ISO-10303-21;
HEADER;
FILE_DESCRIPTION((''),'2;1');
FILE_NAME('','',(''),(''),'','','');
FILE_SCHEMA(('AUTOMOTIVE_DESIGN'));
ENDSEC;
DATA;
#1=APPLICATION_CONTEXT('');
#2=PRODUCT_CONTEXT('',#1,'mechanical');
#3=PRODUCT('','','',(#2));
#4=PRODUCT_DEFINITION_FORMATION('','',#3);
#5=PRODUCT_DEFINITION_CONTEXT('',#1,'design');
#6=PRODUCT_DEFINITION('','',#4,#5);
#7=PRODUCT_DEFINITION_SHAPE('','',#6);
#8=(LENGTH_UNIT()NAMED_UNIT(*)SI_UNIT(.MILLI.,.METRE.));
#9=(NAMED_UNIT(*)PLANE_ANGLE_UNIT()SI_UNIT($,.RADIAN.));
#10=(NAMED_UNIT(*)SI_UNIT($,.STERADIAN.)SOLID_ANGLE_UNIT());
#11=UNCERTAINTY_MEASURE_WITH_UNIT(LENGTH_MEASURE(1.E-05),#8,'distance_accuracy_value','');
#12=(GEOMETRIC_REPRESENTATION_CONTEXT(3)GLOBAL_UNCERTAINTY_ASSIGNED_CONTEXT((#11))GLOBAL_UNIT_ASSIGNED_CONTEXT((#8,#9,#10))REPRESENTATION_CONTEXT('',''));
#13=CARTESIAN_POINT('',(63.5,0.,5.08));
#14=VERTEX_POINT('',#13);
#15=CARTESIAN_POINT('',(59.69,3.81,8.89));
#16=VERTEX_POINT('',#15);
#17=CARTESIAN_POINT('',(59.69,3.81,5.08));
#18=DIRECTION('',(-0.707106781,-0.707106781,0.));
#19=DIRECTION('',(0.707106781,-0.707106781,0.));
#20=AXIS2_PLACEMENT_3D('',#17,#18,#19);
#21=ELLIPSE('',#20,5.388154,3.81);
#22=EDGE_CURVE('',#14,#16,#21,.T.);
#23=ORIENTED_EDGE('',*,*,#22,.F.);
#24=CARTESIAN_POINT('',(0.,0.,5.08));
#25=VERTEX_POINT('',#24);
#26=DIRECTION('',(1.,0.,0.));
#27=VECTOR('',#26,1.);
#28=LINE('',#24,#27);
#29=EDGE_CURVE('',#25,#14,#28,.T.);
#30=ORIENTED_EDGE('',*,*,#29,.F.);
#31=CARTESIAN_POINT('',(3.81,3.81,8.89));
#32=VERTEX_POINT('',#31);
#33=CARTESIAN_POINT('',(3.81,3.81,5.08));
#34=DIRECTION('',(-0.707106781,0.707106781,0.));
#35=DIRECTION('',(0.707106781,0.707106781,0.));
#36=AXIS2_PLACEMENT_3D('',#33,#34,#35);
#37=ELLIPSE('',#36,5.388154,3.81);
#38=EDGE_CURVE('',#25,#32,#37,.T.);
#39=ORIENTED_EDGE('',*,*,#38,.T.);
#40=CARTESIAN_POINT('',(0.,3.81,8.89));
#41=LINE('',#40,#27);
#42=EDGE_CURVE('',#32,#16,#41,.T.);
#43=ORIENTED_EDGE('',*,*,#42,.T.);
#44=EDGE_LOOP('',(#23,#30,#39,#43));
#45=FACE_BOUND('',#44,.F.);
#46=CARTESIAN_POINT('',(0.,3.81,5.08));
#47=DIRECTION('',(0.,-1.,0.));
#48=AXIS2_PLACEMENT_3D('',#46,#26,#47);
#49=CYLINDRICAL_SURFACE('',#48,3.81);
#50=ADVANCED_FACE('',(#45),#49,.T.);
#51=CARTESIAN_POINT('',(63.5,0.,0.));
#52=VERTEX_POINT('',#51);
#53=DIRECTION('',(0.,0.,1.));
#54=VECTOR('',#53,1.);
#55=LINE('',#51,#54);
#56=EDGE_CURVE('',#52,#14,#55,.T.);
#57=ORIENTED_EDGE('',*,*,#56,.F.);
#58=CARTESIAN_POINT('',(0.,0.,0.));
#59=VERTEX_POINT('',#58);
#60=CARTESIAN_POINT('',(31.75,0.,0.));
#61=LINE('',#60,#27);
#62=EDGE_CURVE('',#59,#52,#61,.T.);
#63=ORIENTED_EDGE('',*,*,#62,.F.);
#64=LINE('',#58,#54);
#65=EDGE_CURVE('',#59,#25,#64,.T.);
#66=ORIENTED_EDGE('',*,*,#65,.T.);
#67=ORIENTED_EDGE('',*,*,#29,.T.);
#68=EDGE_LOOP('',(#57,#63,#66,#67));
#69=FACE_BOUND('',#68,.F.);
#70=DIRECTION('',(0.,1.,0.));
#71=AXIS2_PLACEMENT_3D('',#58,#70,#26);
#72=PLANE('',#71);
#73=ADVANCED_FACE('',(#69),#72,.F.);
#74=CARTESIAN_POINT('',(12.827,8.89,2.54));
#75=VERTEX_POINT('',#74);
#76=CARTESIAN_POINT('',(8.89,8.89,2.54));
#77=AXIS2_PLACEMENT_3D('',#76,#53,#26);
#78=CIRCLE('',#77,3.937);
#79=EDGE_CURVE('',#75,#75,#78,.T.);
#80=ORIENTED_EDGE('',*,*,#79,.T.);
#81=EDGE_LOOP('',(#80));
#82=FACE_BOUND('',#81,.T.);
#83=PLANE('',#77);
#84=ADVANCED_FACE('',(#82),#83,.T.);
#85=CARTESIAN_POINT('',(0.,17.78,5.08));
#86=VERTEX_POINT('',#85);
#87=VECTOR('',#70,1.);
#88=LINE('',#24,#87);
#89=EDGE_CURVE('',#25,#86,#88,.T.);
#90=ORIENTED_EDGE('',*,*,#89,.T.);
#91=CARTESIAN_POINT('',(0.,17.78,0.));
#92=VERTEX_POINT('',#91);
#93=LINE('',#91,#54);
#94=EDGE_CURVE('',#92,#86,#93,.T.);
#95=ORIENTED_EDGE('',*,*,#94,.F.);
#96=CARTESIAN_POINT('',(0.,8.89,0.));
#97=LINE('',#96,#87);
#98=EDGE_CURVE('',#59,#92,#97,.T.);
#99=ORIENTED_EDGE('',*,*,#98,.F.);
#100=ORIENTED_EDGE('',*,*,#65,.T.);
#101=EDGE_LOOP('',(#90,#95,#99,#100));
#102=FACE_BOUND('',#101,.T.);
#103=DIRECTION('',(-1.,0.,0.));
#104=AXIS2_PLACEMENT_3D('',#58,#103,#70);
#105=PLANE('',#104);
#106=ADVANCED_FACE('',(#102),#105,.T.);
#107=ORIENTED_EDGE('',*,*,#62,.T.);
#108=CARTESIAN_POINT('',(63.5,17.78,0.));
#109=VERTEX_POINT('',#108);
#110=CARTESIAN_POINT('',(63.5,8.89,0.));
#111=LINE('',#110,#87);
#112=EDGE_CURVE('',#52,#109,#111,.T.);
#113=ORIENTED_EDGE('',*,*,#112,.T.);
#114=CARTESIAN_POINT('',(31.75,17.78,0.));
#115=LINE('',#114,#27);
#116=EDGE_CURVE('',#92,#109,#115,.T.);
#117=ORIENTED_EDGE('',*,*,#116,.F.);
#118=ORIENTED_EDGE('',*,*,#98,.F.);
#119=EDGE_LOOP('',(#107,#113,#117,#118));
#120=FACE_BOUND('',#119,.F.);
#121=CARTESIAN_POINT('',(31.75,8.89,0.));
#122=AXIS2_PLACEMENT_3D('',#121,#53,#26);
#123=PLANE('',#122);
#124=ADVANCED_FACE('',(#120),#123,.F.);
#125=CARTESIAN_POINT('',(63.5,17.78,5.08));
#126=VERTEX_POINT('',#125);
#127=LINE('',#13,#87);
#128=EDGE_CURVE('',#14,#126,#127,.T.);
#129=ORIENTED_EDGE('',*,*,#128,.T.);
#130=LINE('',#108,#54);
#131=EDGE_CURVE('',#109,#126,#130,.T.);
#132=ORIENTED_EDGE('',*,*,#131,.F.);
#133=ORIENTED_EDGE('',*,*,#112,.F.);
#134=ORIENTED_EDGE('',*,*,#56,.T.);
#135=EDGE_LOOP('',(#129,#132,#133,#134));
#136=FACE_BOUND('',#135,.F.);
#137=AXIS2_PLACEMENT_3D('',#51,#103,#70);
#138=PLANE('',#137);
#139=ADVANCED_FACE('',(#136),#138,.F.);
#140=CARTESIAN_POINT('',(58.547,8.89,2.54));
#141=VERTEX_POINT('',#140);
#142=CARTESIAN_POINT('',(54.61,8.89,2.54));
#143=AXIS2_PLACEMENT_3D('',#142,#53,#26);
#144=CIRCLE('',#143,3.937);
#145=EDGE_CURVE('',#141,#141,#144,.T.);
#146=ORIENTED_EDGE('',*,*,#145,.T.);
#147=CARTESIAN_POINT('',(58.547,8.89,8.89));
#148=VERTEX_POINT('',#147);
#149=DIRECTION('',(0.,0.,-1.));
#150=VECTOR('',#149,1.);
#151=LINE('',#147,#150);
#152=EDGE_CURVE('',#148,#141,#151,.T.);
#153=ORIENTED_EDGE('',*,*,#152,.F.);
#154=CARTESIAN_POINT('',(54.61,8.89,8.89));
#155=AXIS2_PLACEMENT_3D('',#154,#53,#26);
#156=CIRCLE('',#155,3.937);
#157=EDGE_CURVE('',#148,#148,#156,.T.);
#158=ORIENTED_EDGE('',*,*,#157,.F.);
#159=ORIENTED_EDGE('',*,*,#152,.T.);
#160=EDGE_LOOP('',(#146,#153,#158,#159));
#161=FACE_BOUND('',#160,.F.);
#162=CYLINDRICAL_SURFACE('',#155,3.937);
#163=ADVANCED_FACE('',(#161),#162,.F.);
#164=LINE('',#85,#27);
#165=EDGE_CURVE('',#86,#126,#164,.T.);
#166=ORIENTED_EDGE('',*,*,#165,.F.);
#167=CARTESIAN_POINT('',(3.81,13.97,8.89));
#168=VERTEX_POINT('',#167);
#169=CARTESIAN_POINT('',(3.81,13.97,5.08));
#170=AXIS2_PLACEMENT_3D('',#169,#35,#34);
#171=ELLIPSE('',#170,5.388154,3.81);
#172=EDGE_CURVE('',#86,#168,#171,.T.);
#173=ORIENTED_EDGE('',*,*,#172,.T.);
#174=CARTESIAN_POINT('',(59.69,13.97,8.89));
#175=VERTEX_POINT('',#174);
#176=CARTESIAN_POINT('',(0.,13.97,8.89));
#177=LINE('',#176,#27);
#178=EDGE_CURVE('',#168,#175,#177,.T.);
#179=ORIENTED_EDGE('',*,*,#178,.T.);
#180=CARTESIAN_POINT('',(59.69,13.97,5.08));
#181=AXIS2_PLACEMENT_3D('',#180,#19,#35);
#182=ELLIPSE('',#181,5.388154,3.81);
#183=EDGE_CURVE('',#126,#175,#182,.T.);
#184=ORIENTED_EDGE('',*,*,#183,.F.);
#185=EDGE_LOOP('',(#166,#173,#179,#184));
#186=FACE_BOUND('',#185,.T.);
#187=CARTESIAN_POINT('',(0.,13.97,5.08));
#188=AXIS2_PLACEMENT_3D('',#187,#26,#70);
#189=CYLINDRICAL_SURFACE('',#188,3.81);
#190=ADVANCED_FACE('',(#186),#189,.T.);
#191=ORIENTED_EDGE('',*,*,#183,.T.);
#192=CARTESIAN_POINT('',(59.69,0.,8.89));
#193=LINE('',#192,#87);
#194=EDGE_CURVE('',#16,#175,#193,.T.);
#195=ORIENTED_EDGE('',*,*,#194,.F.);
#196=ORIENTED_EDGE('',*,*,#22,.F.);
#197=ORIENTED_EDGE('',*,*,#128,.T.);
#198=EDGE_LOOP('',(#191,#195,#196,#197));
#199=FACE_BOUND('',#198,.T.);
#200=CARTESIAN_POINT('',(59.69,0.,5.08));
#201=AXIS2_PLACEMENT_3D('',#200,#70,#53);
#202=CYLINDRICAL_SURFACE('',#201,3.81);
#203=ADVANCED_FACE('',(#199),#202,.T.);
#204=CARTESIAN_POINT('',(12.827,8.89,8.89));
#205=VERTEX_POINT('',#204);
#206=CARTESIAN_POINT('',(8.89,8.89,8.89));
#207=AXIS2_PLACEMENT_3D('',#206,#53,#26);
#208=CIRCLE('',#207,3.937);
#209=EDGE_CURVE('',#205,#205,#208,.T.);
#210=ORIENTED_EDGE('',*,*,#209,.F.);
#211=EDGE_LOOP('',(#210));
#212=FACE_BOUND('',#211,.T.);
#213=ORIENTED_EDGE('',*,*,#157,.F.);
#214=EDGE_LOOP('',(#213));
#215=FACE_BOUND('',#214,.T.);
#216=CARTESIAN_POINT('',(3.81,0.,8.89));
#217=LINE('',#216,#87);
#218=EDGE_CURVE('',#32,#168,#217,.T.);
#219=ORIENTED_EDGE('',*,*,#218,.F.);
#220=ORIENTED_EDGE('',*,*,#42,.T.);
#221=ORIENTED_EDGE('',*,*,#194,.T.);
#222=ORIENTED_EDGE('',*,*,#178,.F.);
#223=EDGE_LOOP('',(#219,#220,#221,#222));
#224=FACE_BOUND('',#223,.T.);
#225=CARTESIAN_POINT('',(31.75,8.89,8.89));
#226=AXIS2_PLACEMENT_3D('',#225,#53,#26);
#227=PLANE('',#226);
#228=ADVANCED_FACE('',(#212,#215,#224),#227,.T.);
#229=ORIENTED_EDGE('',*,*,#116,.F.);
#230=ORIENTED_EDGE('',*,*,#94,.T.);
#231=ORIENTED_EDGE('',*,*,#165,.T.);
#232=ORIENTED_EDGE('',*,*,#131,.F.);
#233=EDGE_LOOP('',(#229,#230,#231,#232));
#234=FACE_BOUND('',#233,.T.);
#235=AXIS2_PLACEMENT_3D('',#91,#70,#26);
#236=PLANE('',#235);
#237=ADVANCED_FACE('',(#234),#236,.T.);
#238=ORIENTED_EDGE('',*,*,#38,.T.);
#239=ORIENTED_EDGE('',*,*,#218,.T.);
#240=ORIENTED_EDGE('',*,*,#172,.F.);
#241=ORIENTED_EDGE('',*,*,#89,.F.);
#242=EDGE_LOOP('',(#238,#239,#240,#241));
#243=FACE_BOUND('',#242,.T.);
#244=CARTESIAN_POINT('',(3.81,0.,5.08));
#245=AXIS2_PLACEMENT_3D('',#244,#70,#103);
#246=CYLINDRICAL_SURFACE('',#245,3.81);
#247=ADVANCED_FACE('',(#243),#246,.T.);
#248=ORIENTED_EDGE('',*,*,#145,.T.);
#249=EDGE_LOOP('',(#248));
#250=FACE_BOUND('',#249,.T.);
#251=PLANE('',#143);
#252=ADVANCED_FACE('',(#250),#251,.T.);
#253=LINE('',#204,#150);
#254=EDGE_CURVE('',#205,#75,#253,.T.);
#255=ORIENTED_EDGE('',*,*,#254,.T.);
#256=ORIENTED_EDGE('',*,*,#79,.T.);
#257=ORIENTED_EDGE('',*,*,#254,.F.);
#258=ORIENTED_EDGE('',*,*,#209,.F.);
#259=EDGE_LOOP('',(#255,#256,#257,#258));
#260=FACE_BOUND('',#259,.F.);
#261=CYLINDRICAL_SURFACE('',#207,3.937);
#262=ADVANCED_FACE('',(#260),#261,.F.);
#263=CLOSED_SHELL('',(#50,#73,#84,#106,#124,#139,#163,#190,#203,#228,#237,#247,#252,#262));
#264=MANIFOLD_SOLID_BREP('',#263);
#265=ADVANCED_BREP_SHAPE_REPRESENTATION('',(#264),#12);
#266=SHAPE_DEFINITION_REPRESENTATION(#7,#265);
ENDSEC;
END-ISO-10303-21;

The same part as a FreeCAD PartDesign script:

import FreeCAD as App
import Part
import Sketcher

V = App.Vector
Q = App.Units.Quantity


def edges_at(feature, points):
    """Names of the edges that pass closest to the given points."""
    edges = feature.Shape.Edges
    near = lambda p: min(range(len(edges)), key=lambda i: edges[i].distToShape(Part.Vertex(*p))[0])
    return sorted({f"Edge{near(p) + 1}" for p in points})


def add_polygon(sketch, points):
    """Adds a closed chain of lines whose ends are joined by coincident constraints."""
    first, n = sketch.GeometryCount, len(points)
    for a, b in zip(points, points[1:] + points[:1]):
        sketch.addGeometry(Part.LineSegment(App.Vector(*a, 0), App.Vector(*b, 0)), False)
    for i in range(n):
        sketch.addConstraint(Sketcher.Constraint("Coincident", first + i, 2, first + (i + 1) % n, 1))

doc = App.newDocument("Part")
body = doc.addObject("PartDesign::Body", "Body")

sketch1 = doc.addObject("Sketcher::SketchObject", "Sketch")
body.addObject(sketch1)
sketch1.AttachmentSupport = (doc.XY_Plane, [""])
sketch1.MapMode = "FlatFace"
add_polygon(sketch1, [(0, 17.78), (0, 0), (63.5, 0), (63.5, 17.78)])
sketch1.addConstraint([
    Sketcher.Constraint("Vertical", 0),
    Sketcher.Constraint("Horizontal", 1),
    Sketcher.Constraint("Vertical", 2),
    Sketcher.Constraint("Horizontal", 3),
    Sketcher.Constraint("Coincident", 0, 2, -1, 1),
    Sketcher.Constraint("DistanceX", 1, 1, 1, 2, Q("2.5 in")),
    Sketcher.Constraint("DistanceY", 0, 2, 0, 1, Q("0.7 in")),
])
pad1 = doc.addObject("PartDesign::Pad", "Pad")
body.addObject(pad1)
pad1.Profile = sketch1
pad1.Length = Q("0.35 in")

sketch2 = doc.addObject("Sketcher::SketchObject", "Sketch001")
body.addObject(sketch2)
sketch2.AttachmentSupport = (doc.XY_Plane, [""])
sketch2.MapMode = "FlatFace"
sketch2.AttachmentOffset = App.Placement(V(0, 0, 0.35 * 25.4), App.Rotation())
sketch2.addGeometry([
    Part.Circle(V(8.89, 8.89, 0), V(0, 0, 1), 3.937),
    Part.Circle(V(54.61, 8.89, 0), V(0, 0, 1), 3.937),
], False)
sketch2.addConstraint([
    Sketcher.Constraint("Equal", 0, 1),
    Sketcher.Constraint("Horizontal", 0, 3, 1, 3),
    Sketcher.Constraint("Diameter", 0, Q("0.31 in")),
    Sketcher.Constraint("DistanceX", 0, 3, 1, 3, Q("1.8 in")),
    Sketcher.Constraint("DistanceX", -1, 1, 0, 3, Q("0.35 in")),
    Sketcher.Constraint("DistanceY", -1, 1, 0, 3, Q("0.35 in")),
])
pocket1 = doc.addObject("PartDesign::Pocket", "Pocket")
body.addObject(pocket1)
pocket1.Profile = sketch2
pocket1.Length = Q("0.25 in")
doc.recompute()

fillet = doc.addObject("PartDesign::Fillet", "Fillet")
body.addObject(fillet)
fillet.Base = (pocket1, edges_at(pocket1, [
    (31.75, 0, 8.89),
    (0, 8.89, 8.89),
    (31.75, 17.78, 8.89),
    (63.5, 8.89, 8.89),
]))
fillet.Radius = Q("0.15 in")

doc.recompute()
